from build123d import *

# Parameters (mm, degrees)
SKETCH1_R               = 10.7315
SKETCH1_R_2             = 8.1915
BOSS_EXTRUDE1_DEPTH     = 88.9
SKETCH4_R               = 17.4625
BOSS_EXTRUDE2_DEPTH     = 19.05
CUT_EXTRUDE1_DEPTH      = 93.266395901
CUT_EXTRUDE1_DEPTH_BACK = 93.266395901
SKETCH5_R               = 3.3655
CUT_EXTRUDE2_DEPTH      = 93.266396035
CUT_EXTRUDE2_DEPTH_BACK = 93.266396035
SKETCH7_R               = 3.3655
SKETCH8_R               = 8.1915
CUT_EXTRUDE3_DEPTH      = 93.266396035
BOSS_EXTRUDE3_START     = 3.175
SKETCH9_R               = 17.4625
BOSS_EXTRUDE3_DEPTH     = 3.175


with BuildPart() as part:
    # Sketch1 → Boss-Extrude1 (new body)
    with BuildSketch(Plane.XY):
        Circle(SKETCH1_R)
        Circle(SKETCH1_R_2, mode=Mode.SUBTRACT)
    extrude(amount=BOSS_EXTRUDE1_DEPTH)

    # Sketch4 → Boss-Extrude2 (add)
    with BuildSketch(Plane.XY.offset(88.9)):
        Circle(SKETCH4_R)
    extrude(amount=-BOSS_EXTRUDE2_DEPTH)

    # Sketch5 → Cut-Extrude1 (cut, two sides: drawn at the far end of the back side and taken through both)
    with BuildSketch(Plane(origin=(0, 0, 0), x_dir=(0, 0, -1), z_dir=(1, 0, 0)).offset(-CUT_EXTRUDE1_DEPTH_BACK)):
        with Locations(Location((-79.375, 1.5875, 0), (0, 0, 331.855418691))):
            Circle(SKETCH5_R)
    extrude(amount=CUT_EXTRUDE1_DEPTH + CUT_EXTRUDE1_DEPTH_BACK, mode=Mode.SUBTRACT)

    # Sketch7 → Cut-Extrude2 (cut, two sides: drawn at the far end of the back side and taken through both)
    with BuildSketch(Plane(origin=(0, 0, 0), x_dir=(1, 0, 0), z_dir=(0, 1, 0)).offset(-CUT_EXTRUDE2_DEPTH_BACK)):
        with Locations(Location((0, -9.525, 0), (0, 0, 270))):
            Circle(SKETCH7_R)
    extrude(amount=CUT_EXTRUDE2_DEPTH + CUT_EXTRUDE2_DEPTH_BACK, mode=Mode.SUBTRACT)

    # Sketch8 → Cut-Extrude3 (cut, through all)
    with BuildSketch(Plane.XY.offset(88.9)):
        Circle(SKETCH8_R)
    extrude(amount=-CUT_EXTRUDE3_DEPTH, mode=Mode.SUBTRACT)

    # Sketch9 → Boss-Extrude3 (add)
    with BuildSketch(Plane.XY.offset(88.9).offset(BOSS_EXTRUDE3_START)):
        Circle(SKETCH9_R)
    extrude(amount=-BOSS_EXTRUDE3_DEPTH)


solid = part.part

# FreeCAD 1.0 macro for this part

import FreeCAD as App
import Part
import Sketcher
Q = App.Units.Quantity

doc = App.newDocument("Part")
body = doc.addObject("PartDesign::Body", "Body")

sketch1 = doc.addObject("Sketcher::SketchObject", "Sketch")
body.addObject(sketch1)
sketch1.AttachmentSupport = (doc.XY_Plane, [""])
sketch1.MapMode = "FlatFace"
sketch1.addGeometry([
    Part.Circle(App.Vector(0, 0, 0), App.Vector(0, 0, 1), 11),
    Part.Circle(App.Vector(0, 0, 0), App.Vector(0, 0, 1), 8),
], False)
sketch1.addConstraint([
    Sketcher.Constraint("Coincident", 0, 3, -1, 1),
    Sketcher.Constraint("Coincident", 1, 3, -1, 1),
    Sketcher.Constraint("Diameter", 0, Q("0.845 in")),
    Sketcher.Constraint("Diameter", 1, Q("0.645 in")),
])
pad1 = doc.addObject("PartDesign::Pad", "Pad")
body.addObject(pad1)
pad1.Profile = sketch1
pad1.Length = Q("3.5 in")

sketch2 = doc.addObject("Sketcher::SketchObject", "Sketch001")
body.addObject(sketch2)
sketch2.AttachmentSupport = (doc.XY_Plane, [""])
sketch2.MapMode = "FlatFace"
sketch2.AttachmentOffset = App.Placement(App.Vector(0, 0, 3.5 * 25.4), App.Rotation())
sketch2.addGeometry(Part.Circle(App.Vector(0, 0, 0), App.Vector(0, 0, 1), 17), False)
sketch2.addConstraint([
    Sketcher.Constraint("Coincident", 0, 3, -1, 1),
    Sketcher.Constraint("Diameter", 0, Q("1.375 in")),
])
pad2 = doc.addObject("PartDesign::Pad", "Pad001")
body.addObject(pad2)
pad2.Profile = sketch2
pad2.Length = Q("0.75 in")
pad2.Reversed = True

sketch3 = doc.addObject("Sketcher::SketchObject", "Sketch002")
body.addObject(sketch3)
sketch3.AttachmentSupport = (doc.YZ_Plane, [""])
sketch3.MapMode = "FlatFace"
sketch3.addGeometry(Part.Circle(App.Vector(1.6, 79.4, 0), App.Vector(0, 0, 1), 3.4), False)
sketch3.addConstraint([
    Sketcher.Constraint("Diameter", 0, Q("0.265 in")),
    Sketcher.Constraint("DistanceX", -1, 1, 0, 3, Q("0.0625 in")),
    Sketcher.Constraint("DistanceY", -1, 1, 0, 3, Q("3.125 in")),
])
pocket1 = doc.addObject("PartDesign::Pocket", "Pocket")
body.addObject(pocket1)
pocket1.Profile = sketch3
pocket1.Type = "ThroughAll"
pocket1.Midplane = True

sketch4 = doc.addObject("Sketcher::SketchObject", "Sketch003")
body.addObject(sketch4)
sketch4.AttachmentSupport = (doc.XZ_Plane, [""])
sketch4.MapMode = "FlatFace"
sketch4.addGeometry(Part.Circle(App.Vector(0, 9.5, 0), App.Vector(0, 0, 1), 3.4), False)
sketch4.addConstraint([
    Sketcher.Constraint("PointOnObject", 0, 3, -2),
    Sketcher.Constraint("Diameter", 0, Q("0.265 in")),
    Sketcher.Constraint("DistanceY", -1, 1, 0, 3, Q("0.375 in")),
])
pocket2 = doc.addObject("PartDesign::Pocket", "Pocket001")
body.addObject(pocket2)
pocket2.Profile = sketch4
pocket2.Type = "ThroughAll"
pocket2.Midplane = True

sketch5 = doc.addObject("Sketcher::SketchObject", "Sketch004")
body.addObject(sketch5)
sketch5.AttachmentSupport = (doc.XY_Plane, [""])
sketch5.MapMode = "FlatFace"
sketch5.AttachmentOffset = App.Placement(App.Vector(0, 0, 3.5 * 25.4), App.Rotation())
sketch5.addGeometry(Part.Circle(App.Vector(0, 0, 0), App.Vector(0, 0, 1), 8), False)
sketch5.addConstraint([
    Sketcher.Constraint("Coincident", 0, 3, -1, 1),
    Sketcher.Constraint("Diameter", 0, Q("0.645 in")),
])
pocket3 = doc.addObject("PartDesign::Pocket", "Pocket002")
body.addObject(pocket3)
pocket3.Profile = sketch5
pocket3.Type = "ThroughAll"

sketch6 = doc.addObject("Sketcher::SketchObject", "Sketch005")
body.addObject(sketch6)
sketch6.AttachmentSupport = (doc.XY_Plane, [""])
sketch6.MapMode = "FlatFace"
sketch6.AttachmentOffset = App.Placement(App.Vector(0, 0, 3.625 * 25.4), App.Rotation())
sketch6.addGeometry(Part.Circle(App.Vector(0, 0, 0), App.Vector(0, 0, 1), 17), False)
sketch6.addConstraint([
    Sketcher.Constraint("Coincident", 0, 3, -1, 1),
    Sketcher.Constraint("Diameter", 0, Q("1.375 in")),
])
pad3 = doc.addObject("PartDesign::Pad", "Pad002")
body.addObject(pad3)
pad3.Profile = sketch6
pad3.Length = Q("0.125 in")
pad3.Reversed = True

doc.recompute()
